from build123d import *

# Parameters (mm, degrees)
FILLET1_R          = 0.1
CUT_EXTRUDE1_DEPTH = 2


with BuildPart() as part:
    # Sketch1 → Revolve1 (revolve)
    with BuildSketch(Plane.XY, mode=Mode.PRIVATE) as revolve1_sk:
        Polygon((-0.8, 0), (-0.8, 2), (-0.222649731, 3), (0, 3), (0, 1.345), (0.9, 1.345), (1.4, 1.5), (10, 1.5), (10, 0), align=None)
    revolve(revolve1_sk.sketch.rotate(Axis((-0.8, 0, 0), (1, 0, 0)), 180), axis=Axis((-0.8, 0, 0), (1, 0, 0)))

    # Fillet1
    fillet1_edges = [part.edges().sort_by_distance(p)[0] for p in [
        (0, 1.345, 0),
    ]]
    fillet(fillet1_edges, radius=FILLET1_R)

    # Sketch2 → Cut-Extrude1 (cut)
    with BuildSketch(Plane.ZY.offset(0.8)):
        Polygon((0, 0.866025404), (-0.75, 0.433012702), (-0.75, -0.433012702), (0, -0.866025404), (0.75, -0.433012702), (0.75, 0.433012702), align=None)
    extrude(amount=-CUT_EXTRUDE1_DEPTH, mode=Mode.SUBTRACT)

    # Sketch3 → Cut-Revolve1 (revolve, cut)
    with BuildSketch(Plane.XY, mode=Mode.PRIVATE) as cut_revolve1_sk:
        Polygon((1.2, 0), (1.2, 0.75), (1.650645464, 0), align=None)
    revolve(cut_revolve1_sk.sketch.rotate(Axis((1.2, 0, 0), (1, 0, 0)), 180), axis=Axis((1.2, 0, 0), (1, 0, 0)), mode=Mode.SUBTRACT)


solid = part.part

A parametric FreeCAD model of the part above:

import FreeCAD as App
import Part
import Sketcher

V = App.Vector
Q = App.Units.Quantity


def edges_at(feature, points):
    """Names of the edges that pass closest to the given points."""
    edges = feature.Shape.Edges
    near = lambda p: min(range(len(edges)), key=lambda i: edges[i].distToShape(Part.Vertex(*p))[0])
    return sorted({f"Edge{near(p) + 1}" for p in points})

doc = App.newDocument("Part")
body = doc.addObject("PartDesign::Body", "Body")

# Sketch on XY plane
sketch1 = doc.addObject("Sketcher::SketchObject", "Sketch")
body.addObject(sketch1)
sketch1.AttachmentSupport = (doc.XY_Plane, [""])
sketch1.MapMode = "FlatFace"
sketch1.addGeometry([
    Part.LineSegment(V(-0.8, 2, 0), V(-0.8, 0, 0)),  # 0
    Part.LineSegment(V(-0.8, 0, 0), V(10, 0, 0)),  # 1
    Part.LineSegment(V(10, 0, 0), V(10, 1.5, 0)),  # 2
    Part.LineSegment(V(10, 1.5, 0), V(1.4, 1.5, 0)),  # 3
    Part.LineSegment(V(1.4, 1.5, 0), V(0.9, 1.34, 0)),  # 4
    Part.LineSegment(V(0.9, 1.34, 0), V(0, 1.34, 0)),  # 5
    Part.LineSegment(V(0, 1.34, 0), V(0, 3, 0)),  # 6
    Part.LineSegment(V(0, 3, 0), V(-0.22, 3, 0)),  # 7
    Part.LineSegment(V(-0.22, 3, 0), V(-0.8, 2, 0)),  # 8
], False)
sketch1.addConstraint([
    Sketcher.Constraint("Coincident", 0, 2, 1, 1),
    Sketcher.Constraint("Coincident", 1, 2, 2, 1),
    Sketcher.Constraint("Coincident", 2, 2, 3, 1),
    Sketcher.Constraint("Coincident", 3, 2, 4, 1),
    Sketcher.Constraint("Coincident", 4, 2, 5, 1),
    Sketcher.Constraint("Coincident", 5, 2, 6, 1),
    Sketcher.Constraint("Coincident", 6, 2, 7, 1),
    Sketcher.Constraint("Coincident", 7, 2, 8, 1),
    Sketcher.Constraint("Coincident", 8, 2, 0, 1),
    Sketcher.Constraint("Vertical", 0),
    Sketcher.Constraint("Horizontal", 1),
    Sketcher.Constraint("Vertical", 2),
    Sketcher.Constraint("Horizontal", 3),
    Sketcher.Constraint("Horizontal", 5),
    Sketcher.Constraint("Vertical", 6),
    Sketcher.Constraint("Horizontal", 7),
    Sketcher.Constraint("PointOnObject", 0, 2, -1),
    Sketcher.Constraint("PointOnObject", 5, 2, -2),
    Sketcher.Constraint("DistanceY", 0, 2, 0, 1, Q("2 mm")),
    Sketcher.Constraint("Angle", 8, Q("-120 deg")),
    Sketcher.Constraint("DistanceX", 1, 1, 1, 2, Q("10.8 mm")),
    Sketcher.Constraint("DistanceX", 3, 2, 3, 1, Q("8.6 mm")),
    Sketcher.Constraint("DistanceX", 5, 2, 5, 1, Q("0.9 mm")),
    Sketcher.Constraint("DistanceY", 2, 1, 2, 2, Q("1.5 mm")),
    Sketcher.Constraint("DistanceX", -1, 1, 1, 2, Q("10 mm")),
    Sketcher.Constraint("DistanceY", -1, 1, 6, 2, Q("3 mm")),
    Sketcher.Constraint("DistanceY", 6, 1, 6, 2, Q("1.655 mm")),
])
revolution = doc.addObject("PartDesign::Revolution", "Revolution")
body.addObject(revolution)
revolution.Profile = sketch1
revolution.ReferenceAxis = (sketch1, ["H_Axis"])
revolution.Angle = 360
doc.recompute()

fillet = doc.addObject("PartDesign::Fillet", "Fillet")
body.addObject(fillet)
fillet.Base = (revolution, edges_at(revolution, [(0, 1.345, 0)]))
fillet.Radius = 0.1

# Sketch on YZ plane
sketch2 = doc.addObject("Sketcher::SketchObject", "Sketch001")
body.addObject(sketch2)
sketch2.AttachmentSupport = (doc.YZ_Plane, [""])
sketch2.MapMode = "FlatFace"
sketch2.AttachmentOffset = App.Placement(V(0, 0, -0.8), App.Rotation())
sketch2.addGeometry([
    Part.LineSegment(V(0.9, 0, 0), V(0.4, -0.8, 0)),  # 0
    Part.LineSegment(V(0.4, -0.8, 0), V(-0.4, -0.8, 0)),  # 1
    Part.LineSegment(V(-0.4, -0.8, 0), V(-0.9, 0, 0)),  # 2
    Part.LineSegment(V(-0.9, 0, 0), V(-0.4, 0.8, 0)),  # 3
    Part.LineSegment(V(-0.4, 0.8, 0), V(0.4, 0.8, 0)),  # 4
    Part.LineSegment(V(0.4, 0.8, 0), V(0.9, 0, 0)),  # 5
], False)
sketch2.addConstraint([
    Sketcher.Constraint("Coincident", 0, 2, 1, 1),
    Sketcher.Constraint("Coincident", 1, 2, 2, 1),
    Sketcher.Constraint("Coincident", 2, 2, 3, 1),
    Sketcher.Constraint("Coincident", 3, 2, 4, 1),
    Sketcher.Constraint("Coincident", 4, 2, 5, 1),
    Sketcher.Constraint("Coincident", 5, 2, 0, 1),
    Sketcher.Constraint("Horizontal", 1),
    Sketcher.Constraint("Horizontal", 4),
    Sketcher.Constraint("Symmetric", 0, 2, 3, 2, -1, 1),
    Sketcher.Constraint("Symmetric", 2, 2, 5, 2, -1, 1),
    Sketcher.Constraint("PointOnObject", 2, 2, -1),
    Sketcher.Constraint("Parallel", 2, 5),
    Sketcher.Constraint("Vertical", 1, 2, 3, 2),
    Sketcher.Constraint("Angle", 0, Q("-120 deg")),
    Sketcher.Constraint("DistanceY", 1, 2, 3, 2, Q("1.5 mm")),
    Sketcher.Constraint("DistanceX", 1, 2, 1, 1, Q("0.866025 mm")),
])
pocket1 = doc.addObject("PartDesign::Pocket", "Pocket")
body.addObject(pocket1)
pocket1.Profile = sketch2
pocket1.Length = 2
pocket1.Reversed = True

# Sketch on XY plane
sketch3 = doc.addObject("Sketcher::SketchObject", "Sketch002")
body.addObject(sketch3)
sketch3.AttachmentSupport = (doc.XY_Plane, [""])
sketch3.MapMode = "FlatFace"
sketch3.addGeometry([
    Part.LineSegment(V(1.2, 0.75, 0), V(1.2, 0, 0)),
    Part.LineSegment(V(1.2, 0, 0), V(1.65, 0, 0)),
    Part.LineSegment(V(1.65, 0, 0), V(1.2, 0.75, 0)),
], False)
sketch3.addConstraint([
    Sketcher.Constraint("Coincident", 0, 2, 1, 1),
    Sketcher.Constraint("Coincident", 1, 2, 2, 1),
    Sketcher.Constraint("Coincident", 2, 2, 0, 1),
    Sketcher.Constraint("Vertical", 0),
    Sketcher.Constraint("Horizontal", 1),
    Sketcher.Constraint("PointOnObject", 0, 2, -1),
    Sketcher.Constraint("Angle", 2, Q("121 deg")),
    Sketcher.Constraint("DistanceY", 0, 2, 0, 1, Q("0.75 mm")),
    Sketcher.Constraint("DistanceX", -1, 1, 0, 2, Q("1.2 mm")),
])
groove = doc.addObject("PartDesign::Groove", "Groove")
body.addObject(groove)
groove.Profile = sketch3
groove.ReferenceAxis = (sketch3, ["H_Axis"])
groove.Angle = 360

doc.recompute()
